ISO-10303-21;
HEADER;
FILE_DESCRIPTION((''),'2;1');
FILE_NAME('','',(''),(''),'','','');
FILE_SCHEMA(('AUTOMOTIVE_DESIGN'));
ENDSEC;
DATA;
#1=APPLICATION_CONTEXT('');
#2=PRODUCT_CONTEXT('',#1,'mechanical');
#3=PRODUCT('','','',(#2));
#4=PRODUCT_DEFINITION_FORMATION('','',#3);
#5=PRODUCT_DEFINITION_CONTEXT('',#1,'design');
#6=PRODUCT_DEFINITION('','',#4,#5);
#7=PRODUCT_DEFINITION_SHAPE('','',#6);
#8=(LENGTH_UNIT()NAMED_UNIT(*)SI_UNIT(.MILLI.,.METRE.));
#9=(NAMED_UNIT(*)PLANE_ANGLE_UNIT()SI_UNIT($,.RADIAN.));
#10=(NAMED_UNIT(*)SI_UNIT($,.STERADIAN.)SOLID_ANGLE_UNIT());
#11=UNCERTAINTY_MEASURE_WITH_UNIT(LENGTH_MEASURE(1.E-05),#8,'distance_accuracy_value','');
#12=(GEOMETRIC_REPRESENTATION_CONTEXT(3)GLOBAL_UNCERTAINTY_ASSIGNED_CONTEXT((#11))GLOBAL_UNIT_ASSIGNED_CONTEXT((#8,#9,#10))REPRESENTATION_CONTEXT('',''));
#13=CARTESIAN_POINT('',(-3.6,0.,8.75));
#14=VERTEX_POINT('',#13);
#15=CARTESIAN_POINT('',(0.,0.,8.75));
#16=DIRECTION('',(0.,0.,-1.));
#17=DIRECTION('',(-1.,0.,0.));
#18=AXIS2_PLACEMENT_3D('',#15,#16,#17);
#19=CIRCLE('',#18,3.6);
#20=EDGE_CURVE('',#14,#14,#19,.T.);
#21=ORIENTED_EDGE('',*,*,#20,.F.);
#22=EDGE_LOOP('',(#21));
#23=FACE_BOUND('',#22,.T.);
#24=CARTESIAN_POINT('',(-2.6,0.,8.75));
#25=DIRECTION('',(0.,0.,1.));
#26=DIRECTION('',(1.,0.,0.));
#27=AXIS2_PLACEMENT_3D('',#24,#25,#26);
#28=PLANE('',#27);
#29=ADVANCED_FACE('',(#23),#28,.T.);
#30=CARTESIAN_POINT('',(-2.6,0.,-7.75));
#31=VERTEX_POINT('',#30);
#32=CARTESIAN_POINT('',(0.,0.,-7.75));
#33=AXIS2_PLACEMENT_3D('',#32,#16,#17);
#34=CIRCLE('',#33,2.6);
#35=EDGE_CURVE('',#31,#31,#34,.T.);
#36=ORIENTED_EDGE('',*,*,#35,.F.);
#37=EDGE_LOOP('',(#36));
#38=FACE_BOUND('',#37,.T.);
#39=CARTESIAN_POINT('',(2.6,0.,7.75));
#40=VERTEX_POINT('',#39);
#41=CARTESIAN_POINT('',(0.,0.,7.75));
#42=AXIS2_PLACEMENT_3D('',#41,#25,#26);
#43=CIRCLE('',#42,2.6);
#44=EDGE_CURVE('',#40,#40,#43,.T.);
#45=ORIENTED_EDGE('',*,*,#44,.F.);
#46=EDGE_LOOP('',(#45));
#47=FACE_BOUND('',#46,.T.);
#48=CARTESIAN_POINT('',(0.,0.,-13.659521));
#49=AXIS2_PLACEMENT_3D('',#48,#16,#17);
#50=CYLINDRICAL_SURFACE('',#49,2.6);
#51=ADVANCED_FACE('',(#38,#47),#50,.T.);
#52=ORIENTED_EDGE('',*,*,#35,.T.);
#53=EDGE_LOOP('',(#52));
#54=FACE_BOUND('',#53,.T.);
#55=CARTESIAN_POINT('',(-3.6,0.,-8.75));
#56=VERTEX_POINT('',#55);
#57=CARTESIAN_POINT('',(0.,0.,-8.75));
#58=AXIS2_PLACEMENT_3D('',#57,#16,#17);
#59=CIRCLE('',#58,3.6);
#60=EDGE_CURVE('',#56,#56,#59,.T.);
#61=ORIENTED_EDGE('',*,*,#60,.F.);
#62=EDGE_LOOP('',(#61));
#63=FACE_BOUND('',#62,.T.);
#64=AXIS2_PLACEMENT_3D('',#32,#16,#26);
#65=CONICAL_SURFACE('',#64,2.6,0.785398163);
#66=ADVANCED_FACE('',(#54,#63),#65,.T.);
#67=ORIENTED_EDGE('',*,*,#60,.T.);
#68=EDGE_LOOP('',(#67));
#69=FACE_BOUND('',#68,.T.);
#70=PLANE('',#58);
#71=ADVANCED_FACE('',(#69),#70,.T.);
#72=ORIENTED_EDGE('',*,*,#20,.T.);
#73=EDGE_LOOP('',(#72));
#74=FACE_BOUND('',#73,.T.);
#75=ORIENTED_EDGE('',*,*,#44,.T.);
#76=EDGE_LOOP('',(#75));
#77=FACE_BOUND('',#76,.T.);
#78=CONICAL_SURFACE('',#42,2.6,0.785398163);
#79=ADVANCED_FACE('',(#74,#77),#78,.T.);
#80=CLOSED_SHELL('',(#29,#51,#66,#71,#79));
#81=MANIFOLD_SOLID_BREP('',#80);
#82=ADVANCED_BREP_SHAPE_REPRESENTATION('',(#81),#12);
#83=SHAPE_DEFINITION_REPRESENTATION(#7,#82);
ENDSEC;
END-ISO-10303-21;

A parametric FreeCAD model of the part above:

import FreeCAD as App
import Part
import Sketcher

V = App.Vector

doc = App.newDocument("Part")
body = doc.addObject("PartDesign::Body", "Body")

# Sketch on XZ plane
sketch1 = doc.addObject("Sketcher::SketchObject", "Sketch")
body.addObject(sketch1)
sketch1.AttachmentSupport = (doc.XZ_Plane, [""])
sketch1.MapMode = "FlatFace"
sketch1.addGeometry(Part.LineSegment(V(-2.6, -8.75, 0), V(-2.6, 8.75, 0)), False)
sketch1.addGeometry(Part.LineSegment(V(-2.6, 8.75, 0), V(0, 8.75, 0)), False)
sketch1.addGeometry(Part.LineSegment(V(0, 8.75, 0), V(0, -8.75, 0)), False)
sketch1.addGeometry(Part.LineSegment(V(0, -8.75, 0), V(-2.6, -8.75, 0)), False)
sketch1.addConstraint(Sketcher.Constraint("Coincident", 0, 2, 1, 1))
sketch1.addConstraint(Sketcher.Constraint("Coincident", 1, 2, 2, 1))
sketch1.addConstraint(Sketcher.Constraint("Coincident", 2, 2, 3, 1))
sketch1.addConstraint(Sketcher.Constraint("Coincident", 3, 2, 0, 1))
sketch1.addConstraint(Sketcher.Constraint("Vertical", 0))
sketch1.addConstraint(Sketcher.Constraint("Horizontal", 1))
sketch1.addConstraint(Sketcher.Constraint("Vertical", 2))
sketch1.addConstraint(Sketcher.Constraint("Horizontal", 3))
sketch1.addConstraint(Sketcher.Constraint("Symmetric", 1, 2, 2, 2, -1, 1))
sketch1.addConstraint(Sketcher.Constraint("DistanceX", 1, 1, 1, 2, 2.6))
sketch1.addConstraint(Sketcher.Constraint("DistanceY", 0, 1, 0, 2, 17.5))
revolution = doc.addObject("PartDesign::Revolution", "Revolution")
body.addObject(revolution)
revolution.Profile = sketch1
revolution.ReferenceAxis = (sketch1, ["V_Axis"])
revolution.Angle = 360

# Sketch on XZ plane
sketch2 = doc.addObject("Sketcher::SketchObject", "Sketch001")
body.addObject(sketch2)
sketch2.AttachmentSupport = (doc.XZ_Plane, [""])
sketch2.MapMode = "FlatFace"
sketch2.addGeometry(Part.LineSegment(V(-2.6, 7.75, 0), V(-3.6, 8.75, 0)), False)
sketch2.addGeometry(Part.LineSegment(V(-3.6, 8.75, 0), V(-2.6, 8.75, 0)), False)
sketch2.addGeometry(Part.LineSegment(V(-2.6, 8.75, 0), V(-2.6, 7.75, 0)), False)
sketch2.addConstraint(Sketcher.Constraint("Coincident", 0, 2, 1, 1))
sketch2.addConstraint(Sketcher.Constraint("Coincident", 1, 2, 2, 1))
sketch2.addConstraint(Sketcher.Constraint("Coincident", 2, 2, 0, 1))
sketch2.addConstraint(Sketcher.Constraint("Horizontal", 1))
sketch2.addConstraint(Sketcher.Constraint("Vertical", 2))
sketch2.addConstraint(Sketcher.Constraint("Equal", 1, 2))
sketch2.addConstraint(Sketcher.Constraint("DistanceX", 1, 1, 1, 2, 1.0))
sketch2.addConstraint(Sketcher.Constraint("DistanceX", 0, 2, -1, 1, 3.6))
sketch2.addConstraint(Sketcher.Constraint("DistanceY", -1, 1, 0, 2, 8.75))
revolution2 = doc.addObject("PartDesign::Revolution", "Revolution001")
body.addObject(revolution2)
revolution2.Profile = sketch2
revolution2.ReferenceAxis = (sketch2, ["V_Axis"])
revolution2.Angle = 360
doc.recompute()

mirrored = doc.addObject("PartDesign::Mirrored", "Mirrored")
body.addObject(mirrored)
mirrored.Originals = [revolution2]
mirrored.MirrorPlane = (doc.XY_Plane, [""])
body.Tip = mirrored

doc.recompute()
